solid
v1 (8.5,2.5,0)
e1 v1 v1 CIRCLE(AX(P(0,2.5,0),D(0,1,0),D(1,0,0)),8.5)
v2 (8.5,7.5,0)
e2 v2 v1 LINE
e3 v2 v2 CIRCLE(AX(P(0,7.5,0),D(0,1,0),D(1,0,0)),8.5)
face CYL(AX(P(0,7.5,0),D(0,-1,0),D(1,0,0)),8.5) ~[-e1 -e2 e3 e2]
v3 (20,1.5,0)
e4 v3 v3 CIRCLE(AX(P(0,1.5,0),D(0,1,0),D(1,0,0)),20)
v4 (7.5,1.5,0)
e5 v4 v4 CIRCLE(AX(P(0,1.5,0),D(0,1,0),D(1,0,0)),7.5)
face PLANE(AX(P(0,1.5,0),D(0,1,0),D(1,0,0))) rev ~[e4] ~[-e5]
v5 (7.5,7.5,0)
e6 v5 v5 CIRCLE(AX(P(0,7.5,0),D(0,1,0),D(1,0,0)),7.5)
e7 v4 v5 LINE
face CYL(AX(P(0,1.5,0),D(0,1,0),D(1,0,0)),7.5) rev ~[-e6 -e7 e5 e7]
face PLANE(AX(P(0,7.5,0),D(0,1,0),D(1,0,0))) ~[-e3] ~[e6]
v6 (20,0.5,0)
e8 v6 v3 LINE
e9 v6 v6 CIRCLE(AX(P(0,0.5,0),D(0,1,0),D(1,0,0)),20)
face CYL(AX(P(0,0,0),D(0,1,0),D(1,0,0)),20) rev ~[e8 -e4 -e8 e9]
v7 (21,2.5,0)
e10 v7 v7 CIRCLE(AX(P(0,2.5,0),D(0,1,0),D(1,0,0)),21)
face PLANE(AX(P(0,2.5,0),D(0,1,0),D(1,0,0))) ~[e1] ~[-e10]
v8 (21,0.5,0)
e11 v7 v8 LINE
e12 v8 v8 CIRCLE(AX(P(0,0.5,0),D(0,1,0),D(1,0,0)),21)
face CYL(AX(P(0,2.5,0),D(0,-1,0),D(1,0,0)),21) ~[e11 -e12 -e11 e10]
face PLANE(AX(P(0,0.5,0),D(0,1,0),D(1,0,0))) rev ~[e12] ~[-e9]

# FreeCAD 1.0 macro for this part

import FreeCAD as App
import Part
import Sketcher

V = App.Vector

doc = App.newDocument("Part")
params = doc.addObject("Spreadsheet::Sheet", "Params")
for row, (alias, value) in enumerate([
    ("sketch1_width", "1 mm"),
    ("sketch1_height", "6 mm"),
    ("revolution_angle", "360 deg"),
], start=1):
    params.set(f"A{row}", alias)
    params.set(f"B{row}", "=" + value)
    params.setAlias(f"B{row}", alias)

body = doc.addObject("PartDesign::Body", "Body")

# Sketch on XY plane
sketch1 = body.newObject("Sketcher::SketchObject", "Sketch")
sketch1.AttachmentSupport = (doc.getObject("XY_Plane"), [""])
sketch1.MapMode = "FlatFace"
sketch1.addGeometry([
    Part.LineSegment(V(20, 1.5, 0), V(20, 0.5, 0)),  # 0
    Part.LineSegment(V(20, 0.5, 0), V(21, 0.5, 0)),  # 1
    Part.LineSegment(V(21, 0.5, 0), V(21, 2.5, 0)),  # 2
    Part.LineSegment(V(21, 2.5, 0), V(8.5, 2.5, 0)),  # 3
    Part.LineSegment(V(8.5, 2.5, 0), V(8.5, 7.5, 0)),  # 4
    Part.LineSegment(V(8.5, 7.5, 0), V(7.5, 7.5, 0)),  # 5
    Part.LineSegment(V(7.5, 7.5, 0), V(7.5, 1.5, 0)),  # 6
    Part.LineSegment(V(7.5, 1.5, 0), V(20, 1.5, 0)),  # 7
], False)
sketch1.addConstraint([
    Sketcher.Constraint("Coincident", 0, 2, 1, 1),
    Sketcher.Constraint("Coincident", 1, 2, 2, 1),
    Sketcher.Constraint("Coincident", 2, 2, 3, 1),
    Sketcher.Constraint("Coincident", 3, 2, 4, 1),
    Sketcher.Constraint("Coincident", 4, 2, 5, 1),
    Sketcher.Constraint("Coincident", 5, 2, 6, 1),
    Sketcher.Constraint("Coincident", 6, 2, 7, 1),
    Sketcher.Constraint("Coincident", 7, 2, 0, 1),
    Sketcher.Constraint("Vertical", 0),
    Sketcher.Constraint("Horizontal", 1),
    Sketcher.Constraint("Vertical", 2),
    Sketcher.Constraint("Horizontal", 3),
    Sketcher.Constraint("Vertical", 4),
    Sketcher.Constraint("Horizontal", 5),
    Sketcher.Constraint("Vertical", 6),
    Sketcher.Constraint("Horizontal", 7),
    Sketcher.Constraint("Equal", 1, 5),
    Sketcher.Constraint("Equal", 5, 0),
    Sketcher.Constraint("DistanceX", 1, 1, 1, 2, 1.0),
    Sketcher.Constraint("DistanceY", 6, 2, 6, 1, 6.0),
    Sketcher.Constraint("DistanceX", -1, 1, 0, 2, 20.0),
    Sketcher.Constraint("DistanceY", 6, 2, 3, 2, 1.0),
    Sketcher.Constraint("DistanceY", -1, 1, 0, 2, 0.5),
    Sketcher.Constraint("DistanceX", -1, 1, 3, 2, 8.5),
])
sketch1.setExpression("Constraints[18]", "Params.sketch1_width")
sketch1.setExpression("Constraints[19]", "Params.sketch1_height")
revolution = body.newObject("PartDesign::Revolution", "Revolution")
revolution.Profile = sketch1
revolution.ReferenceAxis = (sketch1, ["V_Axis"])
revolution.setExpression("Angle", "Params.revolution_angle")

doc.recompute()
